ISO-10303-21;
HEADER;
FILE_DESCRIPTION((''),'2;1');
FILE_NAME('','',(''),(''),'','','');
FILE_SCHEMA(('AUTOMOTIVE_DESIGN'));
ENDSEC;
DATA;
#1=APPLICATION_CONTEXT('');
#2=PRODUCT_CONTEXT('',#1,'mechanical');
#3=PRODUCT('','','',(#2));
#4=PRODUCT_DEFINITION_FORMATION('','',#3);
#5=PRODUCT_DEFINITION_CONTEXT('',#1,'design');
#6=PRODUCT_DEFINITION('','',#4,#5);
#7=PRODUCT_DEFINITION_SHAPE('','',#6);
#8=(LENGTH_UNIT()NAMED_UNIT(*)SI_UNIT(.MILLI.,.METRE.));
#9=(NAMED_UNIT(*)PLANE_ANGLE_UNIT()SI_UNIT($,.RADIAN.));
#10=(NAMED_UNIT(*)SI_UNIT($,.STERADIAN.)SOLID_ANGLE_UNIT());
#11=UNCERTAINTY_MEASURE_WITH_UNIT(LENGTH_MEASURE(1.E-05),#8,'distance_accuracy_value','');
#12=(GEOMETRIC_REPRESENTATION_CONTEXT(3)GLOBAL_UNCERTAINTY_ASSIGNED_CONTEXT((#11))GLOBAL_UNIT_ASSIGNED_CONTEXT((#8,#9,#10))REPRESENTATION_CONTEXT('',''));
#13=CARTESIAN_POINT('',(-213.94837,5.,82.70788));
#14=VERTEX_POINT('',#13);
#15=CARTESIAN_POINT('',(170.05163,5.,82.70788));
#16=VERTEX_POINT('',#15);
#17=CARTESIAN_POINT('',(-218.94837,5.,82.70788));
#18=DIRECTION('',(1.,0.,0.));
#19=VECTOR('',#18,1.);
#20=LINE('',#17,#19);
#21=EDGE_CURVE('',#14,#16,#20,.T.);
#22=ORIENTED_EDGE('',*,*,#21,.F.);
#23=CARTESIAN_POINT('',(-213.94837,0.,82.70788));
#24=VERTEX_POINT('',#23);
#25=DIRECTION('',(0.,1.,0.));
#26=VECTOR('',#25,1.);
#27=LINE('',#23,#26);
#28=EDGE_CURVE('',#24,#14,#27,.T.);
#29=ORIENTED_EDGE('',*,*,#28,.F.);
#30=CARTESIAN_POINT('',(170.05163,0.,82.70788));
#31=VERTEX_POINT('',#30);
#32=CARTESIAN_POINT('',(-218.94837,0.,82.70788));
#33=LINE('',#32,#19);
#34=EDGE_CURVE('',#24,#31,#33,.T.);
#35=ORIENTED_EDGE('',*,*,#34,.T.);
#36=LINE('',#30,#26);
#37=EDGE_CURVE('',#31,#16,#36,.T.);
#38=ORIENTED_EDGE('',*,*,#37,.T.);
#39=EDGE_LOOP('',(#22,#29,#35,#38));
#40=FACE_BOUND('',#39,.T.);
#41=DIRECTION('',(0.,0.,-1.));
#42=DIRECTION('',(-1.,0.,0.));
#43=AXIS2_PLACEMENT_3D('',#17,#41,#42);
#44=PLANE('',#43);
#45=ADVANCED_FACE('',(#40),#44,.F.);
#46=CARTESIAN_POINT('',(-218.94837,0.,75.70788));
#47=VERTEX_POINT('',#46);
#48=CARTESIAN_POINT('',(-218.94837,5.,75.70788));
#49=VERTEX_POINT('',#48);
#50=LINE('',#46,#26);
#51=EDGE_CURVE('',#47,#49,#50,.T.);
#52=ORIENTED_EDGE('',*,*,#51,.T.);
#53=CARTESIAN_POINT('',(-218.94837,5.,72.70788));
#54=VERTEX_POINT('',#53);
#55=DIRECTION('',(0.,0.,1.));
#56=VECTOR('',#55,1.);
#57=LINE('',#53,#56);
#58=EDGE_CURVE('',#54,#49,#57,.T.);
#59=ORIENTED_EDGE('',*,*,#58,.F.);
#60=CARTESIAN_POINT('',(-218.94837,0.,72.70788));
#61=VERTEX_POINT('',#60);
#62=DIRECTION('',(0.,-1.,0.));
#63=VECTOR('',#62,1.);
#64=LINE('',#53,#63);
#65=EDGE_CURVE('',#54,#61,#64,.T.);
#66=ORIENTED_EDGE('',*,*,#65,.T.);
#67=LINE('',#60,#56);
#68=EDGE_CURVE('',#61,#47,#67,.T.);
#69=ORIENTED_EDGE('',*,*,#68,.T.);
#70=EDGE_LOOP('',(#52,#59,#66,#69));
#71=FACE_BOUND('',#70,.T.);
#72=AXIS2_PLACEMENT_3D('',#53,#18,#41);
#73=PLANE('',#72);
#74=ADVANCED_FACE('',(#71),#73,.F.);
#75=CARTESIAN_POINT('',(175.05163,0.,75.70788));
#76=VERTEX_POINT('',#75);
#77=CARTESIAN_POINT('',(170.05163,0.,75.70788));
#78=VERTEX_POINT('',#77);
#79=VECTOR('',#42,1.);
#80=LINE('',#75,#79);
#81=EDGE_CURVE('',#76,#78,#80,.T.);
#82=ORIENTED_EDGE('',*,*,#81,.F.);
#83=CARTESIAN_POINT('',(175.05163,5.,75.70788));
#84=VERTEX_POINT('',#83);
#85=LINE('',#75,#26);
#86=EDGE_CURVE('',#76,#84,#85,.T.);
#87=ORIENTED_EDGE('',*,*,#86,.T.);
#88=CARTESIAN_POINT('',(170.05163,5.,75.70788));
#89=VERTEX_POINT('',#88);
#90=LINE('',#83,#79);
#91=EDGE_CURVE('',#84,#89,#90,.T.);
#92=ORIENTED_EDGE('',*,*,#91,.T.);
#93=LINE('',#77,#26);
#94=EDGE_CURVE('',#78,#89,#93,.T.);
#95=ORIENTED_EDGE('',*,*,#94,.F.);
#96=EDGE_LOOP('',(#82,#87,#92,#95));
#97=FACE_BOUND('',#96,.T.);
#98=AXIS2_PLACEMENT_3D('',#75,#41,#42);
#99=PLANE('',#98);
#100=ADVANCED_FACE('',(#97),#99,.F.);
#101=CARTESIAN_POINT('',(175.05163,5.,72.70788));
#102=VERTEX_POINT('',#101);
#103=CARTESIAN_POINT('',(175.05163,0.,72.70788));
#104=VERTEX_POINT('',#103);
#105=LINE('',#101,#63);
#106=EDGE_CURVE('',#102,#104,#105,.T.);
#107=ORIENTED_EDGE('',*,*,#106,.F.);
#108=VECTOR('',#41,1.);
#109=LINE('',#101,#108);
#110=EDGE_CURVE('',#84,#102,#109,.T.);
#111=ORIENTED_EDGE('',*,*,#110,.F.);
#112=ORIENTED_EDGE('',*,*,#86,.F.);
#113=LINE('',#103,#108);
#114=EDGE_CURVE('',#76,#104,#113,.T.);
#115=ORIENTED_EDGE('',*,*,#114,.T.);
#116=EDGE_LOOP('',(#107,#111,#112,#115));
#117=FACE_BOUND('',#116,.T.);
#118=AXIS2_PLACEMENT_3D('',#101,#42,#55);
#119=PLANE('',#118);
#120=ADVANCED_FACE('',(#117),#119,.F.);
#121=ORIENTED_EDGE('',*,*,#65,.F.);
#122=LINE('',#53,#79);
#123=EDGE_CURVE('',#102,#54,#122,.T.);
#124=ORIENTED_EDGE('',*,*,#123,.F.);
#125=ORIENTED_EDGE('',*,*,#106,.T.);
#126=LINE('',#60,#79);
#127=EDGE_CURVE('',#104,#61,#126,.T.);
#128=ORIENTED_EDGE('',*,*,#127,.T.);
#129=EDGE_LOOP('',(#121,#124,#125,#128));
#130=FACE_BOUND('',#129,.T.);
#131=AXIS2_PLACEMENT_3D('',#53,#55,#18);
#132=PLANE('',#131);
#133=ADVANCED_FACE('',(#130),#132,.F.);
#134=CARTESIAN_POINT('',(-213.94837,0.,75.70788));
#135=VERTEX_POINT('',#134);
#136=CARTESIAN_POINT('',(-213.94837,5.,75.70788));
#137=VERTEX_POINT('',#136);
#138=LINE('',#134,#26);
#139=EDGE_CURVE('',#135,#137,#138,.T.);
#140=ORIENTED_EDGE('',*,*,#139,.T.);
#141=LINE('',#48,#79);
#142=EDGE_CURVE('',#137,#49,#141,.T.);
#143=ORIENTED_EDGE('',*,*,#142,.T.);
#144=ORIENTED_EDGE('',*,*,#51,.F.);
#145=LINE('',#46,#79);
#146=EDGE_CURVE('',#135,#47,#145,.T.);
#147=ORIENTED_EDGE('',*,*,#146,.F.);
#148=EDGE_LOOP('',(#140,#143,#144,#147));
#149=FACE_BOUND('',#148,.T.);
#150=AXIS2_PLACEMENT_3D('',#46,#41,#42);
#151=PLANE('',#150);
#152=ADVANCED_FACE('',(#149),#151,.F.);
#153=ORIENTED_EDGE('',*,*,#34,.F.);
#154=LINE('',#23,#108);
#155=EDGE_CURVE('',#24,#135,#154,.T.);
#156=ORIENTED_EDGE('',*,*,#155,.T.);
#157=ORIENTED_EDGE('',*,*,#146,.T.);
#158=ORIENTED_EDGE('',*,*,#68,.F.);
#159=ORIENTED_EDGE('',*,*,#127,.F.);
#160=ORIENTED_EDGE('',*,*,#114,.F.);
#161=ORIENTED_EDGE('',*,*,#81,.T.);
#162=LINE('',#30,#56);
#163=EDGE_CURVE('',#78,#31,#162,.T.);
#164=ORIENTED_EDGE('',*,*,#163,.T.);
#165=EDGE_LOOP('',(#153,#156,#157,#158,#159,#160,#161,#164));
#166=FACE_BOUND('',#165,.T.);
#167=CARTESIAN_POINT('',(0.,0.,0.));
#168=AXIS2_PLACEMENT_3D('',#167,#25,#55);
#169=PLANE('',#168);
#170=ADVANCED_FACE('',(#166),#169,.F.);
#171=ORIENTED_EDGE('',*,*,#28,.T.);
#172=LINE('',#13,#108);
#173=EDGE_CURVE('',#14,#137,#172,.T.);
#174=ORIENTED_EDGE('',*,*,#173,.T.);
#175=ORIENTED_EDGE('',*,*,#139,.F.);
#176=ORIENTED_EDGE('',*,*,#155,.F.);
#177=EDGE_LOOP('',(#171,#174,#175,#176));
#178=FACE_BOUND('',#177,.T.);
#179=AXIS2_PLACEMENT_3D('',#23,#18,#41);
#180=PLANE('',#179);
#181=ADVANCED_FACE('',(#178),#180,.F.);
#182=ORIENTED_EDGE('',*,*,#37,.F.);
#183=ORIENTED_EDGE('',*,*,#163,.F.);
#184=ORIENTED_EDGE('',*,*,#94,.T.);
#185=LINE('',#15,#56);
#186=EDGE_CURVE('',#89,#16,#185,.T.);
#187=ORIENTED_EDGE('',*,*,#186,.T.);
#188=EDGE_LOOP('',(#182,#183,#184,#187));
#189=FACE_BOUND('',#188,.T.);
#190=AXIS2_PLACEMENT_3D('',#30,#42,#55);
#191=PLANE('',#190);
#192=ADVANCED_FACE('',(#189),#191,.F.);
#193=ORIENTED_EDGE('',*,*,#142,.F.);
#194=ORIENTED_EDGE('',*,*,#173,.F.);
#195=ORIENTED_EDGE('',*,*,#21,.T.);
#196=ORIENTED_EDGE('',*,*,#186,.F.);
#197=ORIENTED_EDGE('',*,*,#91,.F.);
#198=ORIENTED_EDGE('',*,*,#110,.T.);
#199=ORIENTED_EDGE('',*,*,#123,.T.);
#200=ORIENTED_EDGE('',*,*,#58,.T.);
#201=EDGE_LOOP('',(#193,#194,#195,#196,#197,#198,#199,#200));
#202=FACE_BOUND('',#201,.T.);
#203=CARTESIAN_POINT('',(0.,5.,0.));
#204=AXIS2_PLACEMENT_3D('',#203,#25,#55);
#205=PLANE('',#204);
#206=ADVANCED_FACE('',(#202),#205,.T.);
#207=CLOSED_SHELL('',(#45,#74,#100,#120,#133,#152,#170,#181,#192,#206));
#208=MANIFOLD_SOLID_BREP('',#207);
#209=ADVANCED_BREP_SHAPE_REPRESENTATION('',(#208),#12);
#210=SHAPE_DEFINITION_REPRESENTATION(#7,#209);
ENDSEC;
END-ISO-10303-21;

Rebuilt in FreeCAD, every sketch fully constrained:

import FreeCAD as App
import Part
import Sketcher
from FreeCAD import Vector
Q = App.Units.Quantity

doc = App.newDocument("Part")
body = doc.addObject("PartDesign::Body", "Body")

sketch1 = body.newObject("Sketcher::SketchObject", "Sketch")
sketch1.AttachmentSupport = (doc.getObject("XZ_Plane"), [""])
sketch1.MapMode = "FlatFace"
sketch1.addGeometry([
    Part.LineSegment(Vector(-219, 73, 0), Vector(-219, 83, 0)),
    Part.LineSegment(Vector(-219, 83, 0), Vector(175, 83, 0)),
    Part.LineSegment(Vector(175, 83, 0), Vector(175, 73, 0)),
    Part.LineSegment(Vector(175, 73, 0), Vector(-219, 73, 0)),
], False)
sketch1.addConstraint([
    Sketcher.Constraint("Coincident", 0, 2, 1, 1),
    Sketcher.Constraint("Coincident", 1, 2, 2, 1),
    Sketcher.Constraint("Coincident", 2, 2, 3, 1),
    Sketcher.Constraint("Coincident", 3, 2, 0, 1),
    Sketcher.Constraint("Vertical", 0),
    Sketcher.Constraint("Horizontal", 1),
    Sketcher.Constraint("Vertical", 2),
    Sketcher.Constraint("Horizontal", 3),
    Sketcher.Constraint("DistanceX", 1, 1, 1, 2, Q("394 mm")),
    Sketcher.Constraint("DistanceY", 0, 1, 0, 2, Q("10 mm")),
    Sketcher.Constraint("DistanceX", 0, 2, -1, 1, Q("218.94837 mm")),
    Sketcher.Constraint("DistanceY", -1, 1, 0, 2, Q("82.70788 mm")),
])
pad1 = body.newObject("PartDesign::Pad", "Pad")
pad1.Profile = sketch1
pad1.Length = 5
pad1.Reversed = True

sketch2 = body.newObject("Sketcher::SketchObject", "Sketch001")
sketch2.AttachmentSupport = (doc.getObject("XZ_Plane"), [""])
sketch2.MapMode = "FlatFace"
sketch2.AttachmentOffset = App.Placement(Vector(0, 0, -5), App.Rotation())
sketch2.addGeometry([
    Part.LineSegment(Vector(-219, 76, 0), Vector(-219, 83, 0)),
    Part.LineSegment(Vector(-219, 83, 0), Vector(-214, 83, 0)),
    Part.LineSegment(Vector(-214, 83, 0), Vector(-214, 76, 0)),
    Part.LineSegment(Vector(-214, 76, 0), Vector(-219, 76, 0)),
    Part.LineSegment(Vector(170, 76, 0), Vector(170, 83, 0)),
    Part.LineSegment(Vector(170, 83, 0), Vector(175, 83, 0)),
    Part.LineSegment(Vector(175, 83, 0), Vector(175, 76, 0)),
    Part.LineSegment(Vector(175, 76, 0), Vector(170, 76, 0)),
], False)
sketch2.addConstraint([
    Sketcher.Constraint("Coincident", 0, 2, 1, 1),
    Sketcher.Constraint("Coincident", 1, 2, 2, 1),
    Sketcher.Constraint("Coincident", 2, 2, 3, 1),
    Sketcher.Constraint("Coincident", 3, 2, 0, 1),
    Sketcher.Constraint("Coincident", 4, 2, 5, 1),
    Sketcher.Constraint("Coincident", 5, 2, 6, 1),
    Sketcher.Constraint("Coincident", 6, 2, 7, 1),
    Sketcher.Constraint("Coincident", 7, 2, 4, 1),
    Sketcher.Constraint("Vertical", 0),
    Sketcher.Constraint("Horizontal", 1),
    Sketcher.Constraint("Vertical", 2),
    Sketcher.Constraint("Horizontal", 3),
    Sketcher.Constraint("Vertical", 4),
    Sketcher.Constraint("Horizontal", 5),
    Sketcher.Constraint("Vertical", 6),
    Sketcher.Constraint("Horizontal", 7),
    Sketcher.Constraint("Horizontal", 1, 2, 4, 2),
    Sketcher.Constraint("Horizontal", 3, 2, 6, 2),
    Sketcher.Constraint("Equal", 3, 5),
    Sketcher.Constraint("DistanceX", 1, 1, 1, 2, Q("5 mm")),
    Sketcher.Constraint("DistanceY", 0, 1, 0, 2, Q("7 mm")),
    Sketcher.Constraint("DistanceX", 1, 2, 4, 2, Q("384 mm")),
    Sketcher.Constraint("DistanceX", 0, 2, -1, 1, Q("218.94837 mm")),
    Sketcher.Constraint("DistanceY", -1, 1, 0, 2, Q("82.70788 mm")),
])
pocket1 = body.newObject("PartDesign::Pocket", "Pocket")
pocket1.Profile = sketch2
pocket1.Length = 5
pocket1.Reversed = True

doc.recompute()
